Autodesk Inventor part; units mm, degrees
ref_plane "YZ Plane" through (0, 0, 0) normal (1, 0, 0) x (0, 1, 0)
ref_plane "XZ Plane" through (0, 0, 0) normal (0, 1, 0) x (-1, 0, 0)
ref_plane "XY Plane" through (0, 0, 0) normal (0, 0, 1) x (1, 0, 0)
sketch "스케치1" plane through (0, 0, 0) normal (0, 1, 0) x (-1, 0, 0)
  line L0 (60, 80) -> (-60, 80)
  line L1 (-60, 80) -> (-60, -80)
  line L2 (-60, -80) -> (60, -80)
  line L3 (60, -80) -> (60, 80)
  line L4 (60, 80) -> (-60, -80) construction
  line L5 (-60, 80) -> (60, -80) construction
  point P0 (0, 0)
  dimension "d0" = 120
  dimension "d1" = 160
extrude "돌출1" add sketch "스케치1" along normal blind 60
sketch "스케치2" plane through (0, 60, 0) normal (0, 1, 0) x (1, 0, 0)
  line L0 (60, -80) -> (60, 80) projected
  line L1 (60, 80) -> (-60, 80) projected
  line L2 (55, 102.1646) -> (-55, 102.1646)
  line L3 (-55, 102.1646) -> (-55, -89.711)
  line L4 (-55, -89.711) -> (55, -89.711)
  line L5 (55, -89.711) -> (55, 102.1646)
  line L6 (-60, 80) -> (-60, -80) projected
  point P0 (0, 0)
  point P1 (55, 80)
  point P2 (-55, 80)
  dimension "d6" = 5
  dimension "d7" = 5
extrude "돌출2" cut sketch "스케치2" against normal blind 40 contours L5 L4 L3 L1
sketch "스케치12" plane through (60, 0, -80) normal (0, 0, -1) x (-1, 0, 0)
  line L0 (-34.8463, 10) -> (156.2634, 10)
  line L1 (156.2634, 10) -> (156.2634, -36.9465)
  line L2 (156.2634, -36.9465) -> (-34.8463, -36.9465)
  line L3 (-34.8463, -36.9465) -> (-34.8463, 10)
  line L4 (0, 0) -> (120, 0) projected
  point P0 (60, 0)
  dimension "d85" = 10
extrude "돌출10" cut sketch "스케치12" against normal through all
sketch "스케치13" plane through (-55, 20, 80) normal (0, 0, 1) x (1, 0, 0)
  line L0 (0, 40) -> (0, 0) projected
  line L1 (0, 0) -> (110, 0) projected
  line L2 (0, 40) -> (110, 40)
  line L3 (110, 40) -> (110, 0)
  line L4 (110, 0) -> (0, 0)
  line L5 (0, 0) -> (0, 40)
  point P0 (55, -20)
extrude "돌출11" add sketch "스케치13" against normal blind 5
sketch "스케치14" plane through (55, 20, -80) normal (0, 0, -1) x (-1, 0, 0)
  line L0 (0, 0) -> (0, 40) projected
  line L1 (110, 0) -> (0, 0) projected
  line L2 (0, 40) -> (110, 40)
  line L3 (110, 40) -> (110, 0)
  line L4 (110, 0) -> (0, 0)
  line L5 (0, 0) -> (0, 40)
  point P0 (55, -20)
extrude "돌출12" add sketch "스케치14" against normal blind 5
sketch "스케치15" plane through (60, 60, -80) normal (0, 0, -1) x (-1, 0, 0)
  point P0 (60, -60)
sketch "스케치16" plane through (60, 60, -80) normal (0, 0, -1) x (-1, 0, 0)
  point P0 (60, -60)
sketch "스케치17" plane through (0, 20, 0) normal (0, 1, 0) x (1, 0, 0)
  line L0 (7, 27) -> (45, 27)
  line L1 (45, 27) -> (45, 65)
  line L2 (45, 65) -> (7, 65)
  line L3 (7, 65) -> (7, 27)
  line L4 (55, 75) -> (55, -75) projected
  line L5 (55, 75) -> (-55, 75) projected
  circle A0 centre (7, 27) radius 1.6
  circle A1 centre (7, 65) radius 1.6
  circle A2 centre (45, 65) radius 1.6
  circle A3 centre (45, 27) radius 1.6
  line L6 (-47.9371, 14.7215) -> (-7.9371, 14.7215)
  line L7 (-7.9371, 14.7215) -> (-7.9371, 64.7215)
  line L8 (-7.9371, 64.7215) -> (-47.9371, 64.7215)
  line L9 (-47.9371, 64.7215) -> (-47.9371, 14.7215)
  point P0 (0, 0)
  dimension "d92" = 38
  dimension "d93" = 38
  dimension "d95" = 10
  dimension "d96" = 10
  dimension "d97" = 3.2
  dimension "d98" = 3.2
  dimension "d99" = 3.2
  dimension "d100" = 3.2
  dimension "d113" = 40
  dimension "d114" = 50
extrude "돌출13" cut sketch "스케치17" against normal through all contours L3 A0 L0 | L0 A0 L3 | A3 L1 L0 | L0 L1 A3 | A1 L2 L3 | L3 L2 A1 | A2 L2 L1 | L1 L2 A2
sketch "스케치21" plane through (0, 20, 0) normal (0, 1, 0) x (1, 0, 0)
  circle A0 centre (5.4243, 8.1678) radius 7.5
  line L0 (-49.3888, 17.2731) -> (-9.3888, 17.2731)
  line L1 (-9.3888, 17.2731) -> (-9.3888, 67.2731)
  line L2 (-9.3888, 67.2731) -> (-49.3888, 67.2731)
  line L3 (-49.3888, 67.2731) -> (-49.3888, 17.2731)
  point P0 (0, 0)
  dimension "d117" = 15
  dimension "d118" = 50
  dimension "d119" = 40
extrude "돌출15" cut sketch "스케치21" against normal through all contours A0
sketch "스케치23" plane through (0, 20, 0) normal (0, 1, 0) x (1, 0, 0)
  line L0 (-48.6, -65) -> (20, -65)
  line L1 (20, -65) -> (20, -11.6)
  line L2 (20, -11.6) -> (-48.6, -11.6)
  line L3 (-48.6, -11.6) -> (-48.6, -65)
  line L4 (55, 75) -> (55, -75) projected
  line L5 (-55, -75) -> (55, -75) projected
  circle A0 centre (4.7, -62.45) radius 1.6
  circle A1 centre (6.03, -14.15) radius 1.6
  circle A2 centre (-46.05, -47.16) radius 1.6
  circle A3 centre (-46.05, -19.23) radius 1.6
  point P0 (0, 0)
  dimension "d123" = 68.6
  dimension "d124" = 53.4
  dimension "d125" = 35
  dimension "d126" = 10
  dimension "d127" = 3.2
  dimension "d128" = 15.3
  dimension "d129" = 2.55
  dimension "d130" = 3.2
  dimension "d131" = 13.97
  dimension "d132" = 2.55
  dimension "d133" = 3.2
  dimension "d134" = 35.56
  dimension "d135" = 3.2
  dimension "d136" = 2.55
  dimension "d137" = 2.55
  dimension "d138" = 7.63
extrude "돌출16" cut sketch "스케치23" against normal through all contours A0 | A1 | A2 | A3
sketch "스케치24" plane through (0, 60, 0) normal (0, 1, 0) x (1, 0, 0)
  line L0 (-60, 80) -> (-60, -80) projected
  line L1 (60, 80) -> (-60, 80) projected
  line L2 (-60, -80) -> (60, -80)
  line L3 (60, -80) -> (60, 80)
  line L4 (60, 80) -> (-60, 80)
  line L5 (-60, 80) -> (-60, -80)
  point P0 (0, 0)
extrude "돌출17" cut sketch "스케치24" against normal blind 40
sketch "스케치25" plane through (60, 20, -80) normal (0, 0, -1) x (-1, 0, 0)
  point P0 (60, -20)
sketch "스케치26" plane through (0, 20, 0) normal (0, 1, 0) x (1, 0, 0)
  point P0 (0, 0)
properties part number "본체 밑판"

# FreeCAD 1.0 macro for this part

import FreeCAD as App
import Part
import Sketcher

V = App.Vector
Q = App.Units.Quantity


def add_polygon(sketch, points):
    """Adds a closed chain of lines whose ends are joined by coincident constraints."""
    first, n = sketch.GeometryCount, len(points)
    for a, b in zip(points, points[1:] + points[:1]):
        sketch.addGeometry(Part.LineSegment(App.Vector(*a, 0), App.Vector(*b, 0)), False)
    for i in range(n):
        sketch.addConstraint(Sketcher.Constraint("Coincident", first + i, 2, first + (i + 1) % n, 1))

doc = App.newDocument("Part")
params = doc.addObject("Spreadsheet::Sheet", "Params")
for row, (alias, value) in enumerate([
    ("sketch1_width", "120 mm"),
    ("sketch1_height", "160 mm"),
    ("pad1_length", "60 mm"),
    ("sketch2_width", "110 mm"),
    ("pocket1_length", "40 mm"),
    ("sketch4_width", "110 mm"),
    ("sketch4_height", "40 mm"),
    ("pad2_length", "5 mm"),
    ("sketch5_width", "110 mm"),
    ("sketch5_height", "40 mm"),
    ("pad3_length", "5 mm"),
    ("sketch6_diameter", "3.2 mm"),
    ("sketch7_diameter", "15 mm"),
    ("sketch8_diameter", "3.2 mm"),
    ("sketch9_width", "120 mm"),
    ("sketch9_height", "160 mm"),
    ("pocket6_length", "40 mm"),
], start=1):
    params.set(f"A{row}", alias)
    params.set(f"B{row}", "=" + value)
    params.setAlias(f"B{row}", alias)

body = doc.addObject("PartDesign::Body", "Body")

# Sketch on XZ plane
sketch1 = body.newObject("Sketcher::SketchObject", "Sketch")
sketch1.AttachmentSupport = (doc.getObject("XZ_Plane"), [""])
sketch1.MapMode = "FlatFace"
add_polygon(sketch1, [(-60, -80), (-60, 80), (60, 80), (60, -80)])  # lines 0-3
sketch1.addConstraint(Sketcher.Constraint("Vertical", 0))
sketch1.addConstraint(Sketcher.Constraint("Horizontal", 1))
sketch1.addConstraint(Sketcher.Constraint("Vertical", 2))
sketch1.addConstraint(Sketcher.Constraint("Horizontal", 3))
sketch1.addConstraint(Sketcher.Constraint("Symmetric", 0, 2, 2, 2, -1, 1))
sketch1.addConstraint(Sketcher.Constraint("DistanceX", 1, 1, 1, 2, Q("120 mm")))
sketch1.addConstraint(Sketcher.Constraint("DistanceY", 0, 1, 0, 2, Q("160 mm")))
sketch1.setExpression("Constraints[9]", "Params.sketch1_width")
sketch1.setExpression("Constraints[10]", "Params.sketch1_height")
pad1 = body.newObject("PartDesign::Pad", "Pad")
pad1.Profile = sketch1
pad1.setExpression("Length", "Params.pad1_length")
pad1.Reversed = True

# Sketch on XZ plane
sketch2 = body.newObject("Sketcher::SketchObject", "Sketch001")
sketch2.AttachmentSupport = (doc.getObject("XZ_Plane"), [""])
sketch2.MapMode = "FlatFace"
sketch2.AttachmentOffset = App.Placement(V(0, 0, -60), App.Rotation())
add_polygon(sketch2, [(55, 90), (55, -80), (-55, -80), (-55, 90)])  # lines 0-3
sketch2.addConstraint(Sketcher.Constraint("Vertical", 0))
sketch2.addConstraint(Sketcher.Constraint("Horizontal", 1))
sketch2.addConstraint(Sketcher.Constraint("Vertical", 2))
sketch2.addConstraint(Sketcher.Constraint("Horizontal", 3))
sketch2.addConstraint(Sketcher.Constraint("DistanceX", 1, 2, 1, 1, Q("110 mm")))
sketch2.addConstraint(Sketcher.Constraint("DistanceX", -1, 1, 0, 2, Q("55 mm")))
sketch2.addConstraint(Sketcher.Constraint("DistanceY", 0, 2, -1, 1, Q("80 mm")))
sketch2.addConstraint(Sketcher.Constraint("DistanceY", 0, 2, 0, 1, Q("169.711 mm")))
sketch2.setExpression("Constraints[8]", "Params.sketch2_width")
pocket1 = body.newObject("PartDesign::Pocket", "Pocket")
pocket1.Profile = sketch2
pocket1.setExpression("Length", "Params.pocket1_length")
pocket1.Reversed = True

# Sketch on XY plane
sketch3 = body.newObject("Sketcher::SketchObject", "Sketch002")
sketch3.AttachmentSupport = (doc.getObject("XY_Plane"), [""])
sketch3.MapMode = "FlatFace"
sketch3.AttachmentOffset = App.Placement(V(0, 0, -80), App.Rotation())
add_polygon(sketch3, [(-96, 10), (95, 10), (95, -37), (-96, -37)])  # lines 0-3
sketch3.addConstraint(Sketcher.Constraint("Horizontal", 0))
sketch3.addConstraint(Sketcher.Constraint("Vertical", 1))
sketch3.addConstraint(Sketcher.Constraint("Horizontal", 2))
sketch3.addConstraint(Sketcher.Constraint("Vertical", 3))
sketch3.addConstraint(Sketcher.Constraint("DistanceY", -1, 1, 0, 2, Q("10 mm")))
sketch3.addConstraint(Sketcher.Constraint("DistanceX", 0, 1, 0, 2, Q("191.1097 mm")))
sketch3.addConstraint(Sketcher.Constraint("DistanceY", 1, 2, 1, 1, Q("46.9465 mm")))
sketch3.addConstraint(Sketcher.Constraint("DistanceX", -1, 1, 0, 2, Q("94.8463 mm")))
pocket2 = body.newObject("PartDesign::Pocket", "Pocket001")
pocket2.Profile = sketch3
pocket2.Type = "ThroughAll"
pocket2.Reversed = True

# Sketch on XY plane
sketch4 = body.newObject("Sketcher::SketchObject", "Sketch003")
sketch4.AttachmentSupport = (doc.getObject("XY_Plane"), [""])
sketch4.MapMode = "FlatFace"
sketch4.AttachmentOffset = App.Placement(V(0, 0, 80), App.Rotation())
add_polygon(sketch4, [(55, 60), (-55, 60), (-55, 20), (55, 20)])  # lines 0-3
sketch4.addConstraint(Sketcher.Constraint("Horizontal", 0))
sketch4.addConstraint(Sketcher.Constraint("Vertical", 1))
sketch4.addConstraint(Sketcher.Constraint("Horizontal", 2))
sketch4.addConstraint(Sketcher.Constraint("Vertical", 3))
sketch4.addConstraint(Sketcher.Constraint("DistanceX", 0, 2, 0, 1, Q("110 mm")))
sketch4.addConstraint(Sketcher.Constraint("DistanceY", 1, 2, 1, 1, Q("40 mm")))
sketch4.addConstraint(Sketcher.Constraint("DistanceX", 0, 2, -1, 1, Q("55 mm")))
sketch4.addConstraint(Sketcher.Constraint("DistanceY", -1, 1, 0, 2, Q("60 mm")))
sketch4.setExpression("Constraints[8]", "Params.sketch4_width")
sketch4.setExpression("Constraints[9]", "Params.sketch4_height")
pad2 = body.newObject("PartDesign::Pad", "Pad001")
pad2.Profile = sketch4
pad2.setExpression("Length", "Params.pad2_length")
pad2.Reversed = True

# Sketch on XY plane
sketch5 = body.newObject("Sketcher::SketchObject", "Sketch004")
sketch5.AttachmentSupport = (doc.getObject("XY_Plane"), [""])
sketch5.MapMode = "FlatFace"
sketch5.AttachmentOffset = App.Placement(V(0, 0, -80), App.Rotation())
add_polygon(sketch5, [(55, 60), (55, 20), (-55, 20), (-55, 60)])  # lines 0-3
sketch5.addConstraint(Sketcher.Constraint("Vertical", 0))
sketch5.addConstraint(Sketcher.Constraint("Horizontal", 1))
sketch5.addConstraint(Sketcher.Constraint("Vertical", 2))
sketch5.addConstraint(Sketcher.Constraint("Horizontal", 3))
sketch5.addConstraint(Sketcher.Constraint("DistanceX", 1, 2, 1, 1, Q("110 mm")))
sketch5.addConstraint(Sketcher.Constraint("DistanceY", 0, 2, 0, 1, Q("40 mm")))
sketch5.addConstraint(Sketcher.Constraint("DistanceX", -1, 1, 0, 2, Q("55 mm")))
sketch5.addConstraint(Sketcher.Constraint("DistanceY", -1, 1, 0, 2, Q("20 mm")))
sketch5.setExpression("Constraints[8]", "Params.sketch5_width")
sketch5.setExpression("Constraints[9]", "Params.sketch5_height")
pad3 = body.newObject("PartDesign::Pad", "Pad002")
pad3.Profile = sketch5
pad3.setExpression("Length", "Params.pad3_length")

# Sketch on XZ plane
sketch6 = body.newObject("Sketcher::SketchObject", "Sketch005")
sketch6.AttachmentSupport = (doc.getObject("XZ_Plane"), [""])
sketch6.MapMode = "FlatFace"
sketch6.AttachmentOffset = App.Placement(V(0, 0, -20), App.Rotation())
sketch6.addGeometry(Part.Circle(V(7, -27, 0), V(0, 0, 1), 1.6), False)
sketch6.addGeometry(Part.Circle(V(45, -27, 0), V(0, 0, 1), 1.6), False)
sketch6.addGeometry(Part.Circle(V(7, -65, 0), V(0, 0, 1), 1.6), False)
sketch6.addGeometry(Part.Circle(V(45, -65, 0), V(0, 0, 1), 1.6), False)
sketch6.addConstraint(Sketcher.Constraint("Equal", 0, 1))
sketch6.addConstraint(Sketcher.Constraint("Equal", 1, 2))
sketch6.addConstraint(Sketcher.Constraint("Equal", 2, 3))
sketch6.addConstraint(Sketcher.Constraint("Horizontal", 0, 3, 1, 3))
sketch6.addConstraint(Sketcher.Constraint("Horizontal", 2, 3, 3, 3))
sketch6.addConstraint(Sketcher.Constraint("Vertical", 0, 3, 2, 3))
sketch6.addConstraint(Sketcher.Constraint("Vertical", 1, 3, 3, 3))
sketch6.addConstraint(Sketcher.Constraint("Diameter", 0, Q("3.2 mm")))
sketch6.addConstraint(Sketcher.Constraint("DistanceX", 0, 3, 1, 3, Q("38 mm")))
sketch6.addConstraint(Sketcher.Constraint("DistanceY", 2, 3, 0, 3, Q("38 mm")))
sketch6.addConstraint(Sketcher.Constraint("DistanceX", -1, 1, 0, 3, Q("7 mm")))
sketch6.addConstraint(Sketcher.Constraint("DistanceY", 0, 3, -1, 1, Q("27 mm")))
sketch6.setExpression("Constraints[7]", "Params.sketch6_diameter")
pocket3 = body.newObject("PartDesign::Pocket", "Pocket002")
pocket3.Profile = sketch6
pocket3.Type = "ThroughAll"
pocket3.Reversed = True

# Sketch on XZ plane
sketch7 = body.newObject("Sketcher::SketchObject", "Sketch006")
sketch7.AttachmentSupport = (doc.getObject("XZ_Plane"), [""])
sketch7.MapMode = "FlatFace"
sketch7.AttachmentOffset = App.Placement(V(0, 0, -20), App.Rotation())
sketch7.addGeometry(Part.Circle(V(5, -8, 0), V(0, 0, 1), 8), False)
sketch7.addConstraint(Sketcher.Constraint("Diameter", 0, Q("15 mm")))
sketch7.addConstraint(Sketcher.Constraint("DistanceX", -1, 1, 0, 3, Q("5.4243 mm")))
sketch7.addConstraint(Sketcher.Constraint("DistanceY", 0, 3, -1, 1, Q("8.1678 mm")))
sketch7.setExpression("Constraints[0]", "Params.sketch7_diameter")
pocket4 = body.newObject("PartDesign::Pocket", "Pocket003")
pocket4.Profile = sketch7
pocket4.Type = "ThroughAll"
pocket4.Reversed = True

# Sketch on XZ plane
sketch8 = body.newObject("Sketcher::SketchObject", "Sketch007")
sketch8.AttachmentSupport = (doc.getObject("XZ_Plane"), [""])
sketch8.MapMode = "FlatFace"
sketch8.AttachmentOffset = App.Placement(V(0, 0, -20), App.Rotation())
sketch8.addGeometry(Part.Circle(V(4.7, 62.5, 0), V(0, 0, 1), 1.6), False)
sketch8.addGeometry(Part.Circle(V(6, 14.2, 0), V(0, 0, 1), 1.6), False)
sketch8.addGeometry(Part.Circle(V(-46, 47.2, 0), V(0, 0, 1), 1.6), False)
sketch8.addGeometry(Part.Circle(V(-46, 19.2, 0), V(0, 0, 1), 1.6), False)
sketch8.addConstraint(Sketcher.Constraint("Equal", 0, 1))
sketch8.addConstraint(Sketcher.Constraint("Equal", 1, 2))
sketch8.addConstraint(Sketcher.Constraint("Equal", 2, 3))
sketch8.addConstraint(Sketcher.Constraint("Vertical", 2, 3, 3, 3))
sketch8.addConstraint(Sketcher.Constraint("Diameter", 0, Q("3.2 mm")))
sketch8.addConstraint(Sketcher.Constraint("DistanceX", -1, 1, 0, 3, Q("4.7 mm")))
sketch8.addConstraint(Sketcher.Constraint("DistanceY", 1, 3, 0, 3, Q("48.3 mm")))
sketch8.addConstraint(Sketcher.Constraint("DistanceY", -1, 1, 0, 3, Q("62.45 mm")))
sketch8.addConstraint(Sketcher.Constraint("DistanceX", -1, 1, 1, 3, Q("6.03 mm")))
sketch8.addConstraint(Sketcher.Constraint("DistanceX", 2, 3, -1, 1, Q("46.05 mm")))
sketch8.addConstraint(Sketcher.Constraint("DistanceY", -1, 1, 2, 3, Q("47.16 mm")))
sketch8.addConstraint(Sketcher.Constraint("DistanceY", -1, 1, 3, 3, Q("19.23 mm")))
sketch8.setExpression("Constraints[4]", "Params.sketch8_diameter")
pocket5 = body.newObject("PartDesign::Pocket", "Pocket004")
pocket5.Profile = sketch8
pocket5.Type = "ThroughAll"
pocket5.Reversed = True

# Sketch on XZ plane
sketch9 = body.newObject("Sketcher::SketchObject", "Sketch008")
sketch9.AttachmentSupport = (doc.getObject("XZ_Plane"), [""])
sketch9.MapMode = "FlatFace"
sketch9.AttachmentOffset = App.Placement(V(0, 0, -60), App.Rotation())
add_polygon(sketch9, [(60, -80), (-60, -80), (-60, 80), (60, 80)])  # lines 0-3
sketch9.addConstraint(Sketcher.Constraint("Horizontal", 0))
sketch9.addConstraint(Sketcher.Constraint("Vertical", 1))
sketch9.addConstraint(Sketcher.Constraint("Horizontal", 2))
sketch9.addConstraint(Sketcher.Constraint("Vertical", 3))
sketch9.addConstraint(Sketcher.Constraint("Symmetric", 0, 2, 2, 2, -1, 1))
sketch9.addConstraint(Sketcher.Constraint("DistanceX", 0, 2, 0, 1, Q("120 mm")))
sketch9.addConstraint(Sketcher.Constraint("DistanceY", 1, 1, 1, 2, Q("160 mm")))
sketch9.setExpression("Constraints[9]", "Params.sketch9_width")
sketch9.setExpression("Constraints[10]", "Params.sketch9_height")
pocket6 = body.newObject("PartDesign::Pocket", "Pocket005")
pocket6.Profile = sketch9
pocket6.setExpression("Length", "Params.pocket6_length")
pocket6.Reversed = True

doc.recompute()
